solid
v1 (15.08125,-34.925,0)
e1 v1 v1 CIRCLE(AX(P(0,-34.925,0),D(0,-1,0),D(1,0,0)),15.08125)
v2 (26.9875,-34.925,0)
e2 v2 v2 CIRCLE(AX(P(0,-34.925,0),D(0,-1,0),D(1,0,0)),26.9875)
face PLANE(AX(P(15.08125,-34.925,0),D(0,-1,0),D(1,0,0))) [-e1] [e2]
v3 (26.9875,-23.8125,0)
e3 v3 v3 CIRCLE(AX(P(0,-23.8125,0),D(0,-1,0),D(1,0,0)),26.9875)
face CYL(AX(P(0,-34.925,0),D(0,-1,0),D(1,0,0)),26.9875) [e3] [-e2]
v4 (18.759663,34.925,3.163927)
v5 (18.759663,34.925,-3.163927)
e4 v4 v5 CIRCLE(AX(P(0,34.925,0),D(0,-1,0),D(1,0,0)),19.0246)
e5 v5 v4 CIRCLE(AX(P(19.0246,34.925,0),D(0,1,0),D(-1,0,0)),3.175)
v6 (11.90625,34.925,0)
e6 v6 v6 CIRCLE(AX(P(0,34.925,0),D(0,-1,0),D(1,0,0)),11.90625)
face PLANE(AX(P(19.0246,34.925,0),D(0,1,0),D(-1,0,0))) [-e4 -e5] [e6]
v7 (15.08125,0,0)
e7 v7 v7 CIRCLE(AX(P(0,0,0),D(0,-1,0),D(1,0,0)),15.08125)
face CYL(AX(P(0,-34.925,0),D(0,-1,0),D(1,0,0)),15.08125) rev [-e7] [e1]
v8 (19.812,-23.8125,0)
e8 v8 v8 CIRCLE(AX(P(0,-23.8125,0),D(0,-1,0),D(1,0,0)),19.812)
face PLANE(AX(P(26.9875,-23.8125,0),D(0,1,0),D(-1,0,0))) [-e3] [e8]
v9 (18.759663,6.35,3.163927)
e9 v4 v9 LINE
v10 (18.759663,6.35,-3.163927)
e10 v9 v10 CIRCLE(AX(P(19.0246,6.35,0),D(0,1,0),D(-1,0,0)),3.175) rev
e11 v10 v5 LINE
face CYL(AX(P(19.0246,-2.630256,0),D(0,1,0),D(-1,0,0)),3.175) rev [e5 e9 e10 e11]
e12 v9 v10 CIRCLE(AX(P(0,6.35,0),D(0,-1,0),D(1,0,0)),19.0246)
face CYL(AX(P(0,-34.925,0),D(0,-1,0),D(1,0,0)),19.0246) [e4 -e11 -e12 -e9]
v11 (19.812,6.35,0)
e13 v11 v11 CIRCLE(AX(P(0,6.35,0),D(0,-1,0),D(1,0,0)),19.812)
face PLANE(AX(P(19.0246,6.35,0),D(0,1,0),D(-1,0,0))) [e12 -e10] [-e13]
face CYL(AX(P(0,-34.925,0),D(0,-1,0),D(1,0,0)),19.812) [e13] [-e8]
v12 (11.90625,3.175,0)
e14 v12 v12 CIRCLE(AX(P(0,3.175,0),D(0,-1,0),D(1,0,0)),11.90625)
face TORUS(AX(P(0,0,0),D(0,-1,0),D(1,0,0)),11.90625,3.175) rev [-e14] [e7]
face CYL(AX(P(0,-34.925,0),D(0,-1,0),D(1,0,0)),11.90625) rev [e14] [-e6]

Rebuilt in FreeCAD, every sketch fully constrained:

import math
import FreeCAD as App
import Part
import Sketcher
from FreeCAD import Vector
Q = App.Units.Quantity

doc = App.newDocument("Part")
params = doc.addObject("Spreadsheet::Sheet", "Params")
for row, (alias, value) in enumerate([
    ("sketch1_radius", "0.125 in"),
    ("sketch1_height", "1.25 in"),
    ("sketch1_width", "0.46875 in"),
    ("sketch1_width2", "0.031 in"),
    ("sketch1_height2", "0.4375 in"),
    ("revolution_angle", "360 deg"),
    ("sketch2_diameter", "0.25 in"),
    ("pocket1_length", "1.125 in"),
], start=1):
    params.set(f"A{row}", alias)
    params.set(f"B{row}", "=" + value)
    params.setAlias(f"B{row}", alias)

body = doc.addObject("PartDesign::Body", "Body")

# Sketch on XY plane
sketch1 = body.newObject("Sketcher::SketchObject", "Sketch")
sketch1.AttachmentSupport = (doc.getObject("XY_Plane"), [""])
sketch1.MapMode = "FlatFace"
sketch1.addGeometry([
    Part.LineSegment(Vector(15.1, -34.9, 0), Vector(27, -34.9, 0)),  # 0
    Part.LineSegment(Vector(27, -34.9, 0), Vector(27, -23.8, 0)),  # 1
    Part.LineSegment(Vector(27, -23.8, 0), Vector(19.8, -23.8, 0)),  # 2
    Part.LineSegment(Vector(19.8, -23.8, 0), Vector(19.8, 6.3, 0)),  # 3
    Part.LineSegment(Vector(19.8, 6.3, 0), Vector(19, 6.3, 0)),  # 4
    Part.LineSegment(Vector(19, 6.3, 0), Vector(19, 34.9, 0)),  # 5
    Part.LineSegment(Vector(19, 34.9, 0), Vector(11.9, 34.9, 0)),  # 6
    Part.LineSegment(Vector(11.9, 34.9, 0), Vector(11.9, 3.2, 0)),  # 7
    Part.ArcOfCircle(Part.Circle(Vector(11.9, 0, 0), Vector(0, 0, 1), 3.2), math.radians(0), math.radians(90)),  # 8
    Part.LineSegment(Vector(15.1, 0, 0), Vector(15.1, -34.9, 0)),  # 9
], False)
sketch1.addConstraint([
    Sketcher.Constraint("Coincident", 0, 2, 1, 1),
    Sketcher.Constraint("Coincident", 1, 2, 2, 1),
    Sketcher.Constraint("Coincident", 2, 2, 3, 1),
    Sketcher.Constraint("Coincident", 3, 2, 4, 1),
    Sketcher.Constraint("Coincident", 4, 2, 5, 1),
    Sketcher.Constraint("Coincident", 5, 2, 6, 1),
    Sketcher.Constraint("Coincident", 6, 2, 7, 1),
    Sketcher.Constraint("Coincident", 7, 2, 8, 2),
    Sketcher.Constraint("Tangent", 8, 1, 9, 1),
    Sketcher.Constraint("Coincident", 9, 2, 0, 1),
    Sketcher.Constraint("Horizontal", 0),
    Sketcher.Constraint("Vertical", 1),
    Sketcher.Constraint("Horizontal", 2),
    Sketcher.Constraint("Vertical", 3),
    Sketcher.Constraint("Horizontal", 4),
    Sketcher.Constraint("Vertical", 5),
    Sketcher.Constraint("Horizontal", 6),
    Sketcher.Constraint("Vertical", 7),
    Sketcher.Constraint("Vertical", 9),
    Sketcher.Constraint("PointOnObject", 8, 3, -1),
    Sketcher.Constraint("Vertical", 8, 3, 6, 2),
    Sketcher.Constraint("Radius", 8, Q("0.125 in")),
    Sketcher.Constraint("DistanceY", 7, 2, 7, 1, Q("1.25 in")),
    Sketcher.Constraint("DistanceX", 0, 1, 0, 2, Q("0.46875 in")),
    Sketcher.Constraint("DistanceX", 4, 2, 4, 1, Q("0.031 in")),
    Sketcher.Constraint("DistanceY", 1, 1, 1, 2, Q("0.4375 in")),
    Sketcher.Constraint("DistanceY", 3, 1, 3, 2, Q("1.1875 in")),
    Sketcher.Constraint("DistanceY", 5, 1, 5, 2, Q("1.125 in")),
    Sketcher.Constraint("DistanceX", -1, 1, 2, 2, Q("0.78 in")),
    Sketcher.Constraint("DistanceX", 2, 2, 2, 1, Q("0.2825 in")),
])
sketch1.setExpression("Constraints[21]", "Params.sketch1_radius")
sketch1.setExpression("Constraints[22]", "Params.sketch1_height")
sketch1.setExpression("Constraints[23]", "Params.sketch1_width")
sketch1.setExpression("Constraints[24]", "Params.sketch1_width2")
sketch1.setExpression("Constraints[25]", "Params.sketch1_height2")
revolution = body.newObject("PartDesign::Revolution", "Revolution")
revolution.Profile = sketch1
revolution.ReferenceAxis = (sketch1, ["V_Axis"])
revolution.setExpression("Angle", "Params.revolution_angle")

# Sketch on XZ plane
sketch2 = body.newObject("Sketcher::SketchObject", "Sketch001")
sketch2.AttachmentSupport = (doc.getObject("XZ_Plane"), [""])
sketch2.MapMode = "FlatFace"
sketch2.AttachmentOffset = App.Placement(Vector(0, 0, -1.375 * 25.4), App.Rotation())
sketch2.addGeometry(Part.Circle(Vector(19, 0, 0), Vector(0, 0, 1), 3.2), False)
sketch2.addConstraint([
    Sketcher.Constraint("PointOnObject", 0, 3, -1),
    Sketcher.Constraint("Diameter", 0, Q("0.25 in")),
    Sketcher.Constraint("DistanceX", -1, 1, 0, 3, Q("0.749 in")),
])
sketch2.setExpression("Constraints[1]", "Params.sketch2_diameter")
pocket1 = body.newObject("PartDesign::Pocket", "Pocket")
pocket1.Profile = sketch2
pocket1.setExpression("Length", "Params.pocket1_length")
pocket1.Reversed = True

doc.recompute()
